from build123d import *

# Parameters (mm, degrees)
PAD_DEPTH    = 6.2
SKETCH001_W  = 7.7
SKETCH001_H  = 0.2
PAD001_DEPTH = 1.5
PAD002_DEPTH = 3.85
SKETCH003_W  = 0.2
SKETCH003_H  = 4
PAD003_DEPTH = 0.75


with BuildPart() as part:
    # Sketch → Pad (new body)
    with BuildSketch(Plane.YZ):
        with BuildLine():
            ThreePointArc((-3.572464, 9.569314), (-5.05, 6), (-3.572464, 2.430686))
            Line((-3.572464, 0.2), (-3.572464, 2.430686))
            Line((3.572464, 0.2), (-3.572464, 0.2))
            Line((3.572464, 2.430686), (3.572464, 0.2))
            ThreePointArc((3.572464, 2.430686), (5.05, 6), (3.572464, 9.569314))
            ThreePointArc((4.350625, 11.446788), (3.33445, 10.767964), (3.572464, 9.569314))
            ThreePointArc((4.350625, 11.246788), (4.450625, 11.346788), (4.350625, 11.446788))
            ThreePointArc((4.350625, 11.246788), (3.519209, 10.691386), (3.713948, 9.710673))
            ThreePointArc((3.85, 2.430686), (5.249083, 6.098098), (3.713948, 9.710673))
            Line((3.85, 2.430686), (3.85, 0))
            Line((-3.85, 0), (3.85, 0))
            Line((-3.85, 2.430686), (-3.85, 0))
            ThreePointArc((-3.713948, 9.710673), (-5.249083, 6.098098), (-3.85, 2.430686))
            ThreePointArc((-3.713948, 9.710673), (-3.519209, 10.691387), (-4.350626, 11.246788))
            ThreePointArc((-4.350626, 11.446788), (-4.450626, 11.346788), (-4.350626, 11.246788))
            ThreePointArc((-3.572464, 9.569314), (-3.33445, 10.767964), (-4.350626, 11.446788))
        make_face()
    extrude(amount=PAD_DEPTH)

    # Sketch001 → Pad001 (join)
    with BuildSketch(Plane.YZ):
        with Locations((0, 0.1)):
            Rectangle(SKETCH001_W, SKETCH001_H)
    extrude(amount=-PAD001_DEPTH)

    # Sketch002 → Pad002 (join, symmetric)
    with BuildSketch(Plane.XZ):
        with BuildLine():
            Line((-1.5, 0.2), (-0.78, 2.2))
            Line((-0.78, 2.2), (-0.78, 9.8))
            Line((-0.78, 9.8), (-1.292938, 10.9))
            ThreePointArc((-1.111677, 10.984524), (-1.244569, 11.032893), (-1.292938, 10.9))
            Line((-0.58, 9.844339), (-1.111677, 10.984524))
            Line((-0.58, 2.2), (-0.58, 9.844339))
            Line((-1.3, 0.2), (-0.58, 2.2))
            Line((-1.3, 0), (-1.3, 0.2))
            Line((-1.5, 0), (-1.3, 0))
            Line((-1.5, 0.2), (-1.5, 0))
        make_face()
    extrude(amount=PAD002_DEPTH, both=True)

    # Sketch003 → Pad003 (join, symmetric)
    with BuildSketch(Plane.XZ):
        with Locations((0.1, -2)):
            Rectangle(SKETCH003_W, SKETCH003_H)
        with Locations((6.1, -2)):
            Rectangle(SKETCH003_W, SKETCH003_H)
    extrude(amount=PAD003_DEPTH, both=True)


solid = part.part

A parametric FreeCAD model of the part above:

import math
import FreeCAD as App
import Part
import Sketcher
from FreeCAD import Vector
Q = App.Units.Quantity

doc = App.newDocument("Part")
body = doc.addObject("PartDesign::Body", "Body")

# Sketch on YZ plane
sketch1 = doc.addObject("Sketcher::SketchObject", "Sketch")
body.addObject(sketch1)
sketch1.AttachmentSupport = (doc.YZ_Plane, [""])
sketch1.MapMode = "FlatFace"
sketch1.addGeometry(Part.ArcOfCircle(Part.Circle(Vector(0, 6, 0), Vector(0, 0, 1), 5.05), math.radians(135), math.radians(225)), False)
sketch1.addGeometry(Part.ArcOfCircle(Part.Circle(Vector(-4.35, 10.35, 0), Vector(0, 0, 1), 1.1), math.radians(-45), math.radians(90)), False)
sketch1.addGeometry(Part.ArcOfCircle(Part.Circle(Vector(-4.35, 11.35, 0), Vector(0, 0, 1), 0.1), math.radians(90), math.radians(270)), False)
sketch1.addGeometry(Part.ArcOfCircle(Part.Circle(Vector(-4.35, 10.35, 0), Vector(0, 0, 1), 0.9), math.radians(-45), math.radians(90)), False)
sketch1.addGeometry(Part.ArcOfCircle(Part.Circle(Vector(0, 6, 0), Vector(0, 0, 1), 5.25), math.radians(135), math.radians(223)), False)
sketch1.addGeometry(Part.LineSegment(Vector(-3.85, 2.43, 0), Vector(-3.85, 0, 0)), False)
sketch1.addGeometry(Part.LineSegment(Vector(-3.85, 0, 0), Vector(3.85, 0, 0)), False)
sketch1.addGeometry(Part.LineSegment(Vector(3.85, 0, 0), Vector(3.85, 2.43, 0)), False)
sketch1.addGeometry(Part.ArcOfCircle(Part.Circle(Vector(0, 6, 0), Vector(0, 0, 1), 5.25), math.radians(-43), math.radians(45)), False)
sketch1.addGeometry(Part.ArcOfCircle(Part.Circle(Vector(4.35, 10.35, 0), Vector(0, 0, 1), 0.9), math.radians(90), math.radians(225)), False)
sketch1.addGeometry(Part.ArcOfCircle(Part.Circle(Vector(4.35, 11.35, 0), Vector(0, 0, 1), 0.1), math.radians(-90), math.radians(90)), False)
sketch1.addGeometry(Part.ArcOfCircle(Part.Circle(Vector(4.35, 10.35, 0), Vector(0, 0, 1), 1.1), math.radians(90), math.radians(225)), False)
sketch1.addGeometry(Part.ArcOfCircle(Part.Circle(Vector(0, 6, 0), Vector(0, 0, 1), 5.05), math.radians(-45), math.radians(45)), False)
sketch1.addGeometry(Part.LineSegment(Vector(3.57, 2.43, 0), Vector(3.57, 0.2, 0)), False)
sketch1.addGeometry(Part.LineSegment(Vector(3.57, 0.2, 0), Vector(-3.57, 0.2, 0)), False)
sketch1.addGeometry(Part.LineSegment(Vector(-3.57, 0.2, 0), Vector(-3.57, 2.43, 0)), False)
sketch1.addConstraint(Sketcher.Constraint("Tangent", 0, 1, 1, 1))
sketch1.addConstraint(Sketcher.Constraint("Tangent", 1, 2, 2, 1))
sketch1.addConstraint(Sketcher.Constraint("Coincident", 2, 2, 3, 2))
sketch1.addConstraint(Sketcher.Constraint("Tangent", 3, 1, 4, 1))
sketch1.addConstraint(Sketcher.Constraint("Coincident", 4, 2, 5, 1))
sketch1.addConstraint(Sketcher.Constraint("Coincident", 5, 2, 6, 1))
sketch1.addConstraint(Sketcher.Constraint("Coincident", 6, 2, 7, 1))
sketch1.addConstraint(Sketcher.Constraint("Coincident", 7, 2, 8, 1))
sketch1.addConstraint(Sketcher.Constraint("Tangent", 8, 2, 9, 2))
sketch1.addConstraint(Sketcher.Constraint("Tangent", 9, 1, 10, 1))
sketch1.addConstraint(Sketcher.Constraint("Tangent", 10, 2, 11, 1))
sketch1.addConstraint(Sketcher.Constraint("Tangent", 11, 2, 12, 2))
sketch1.addConstraint(Sketcher.Constraint("Coincident", 12, 1, 13, 1))
sketch1.addConstraint(Sketcher.Constraint("Coincident", 13, 2, 14, 1))
sketch1.addConstraint(Sketcher.Constraint("Coincident", 14, 2, 15, 1))
sketch1.addConstraint(Sketcher.Constraint("Coincident", 15, 2, 0, 2))
sketch1.addConstraint(Sketcher.Constraint("Vertical", 5))
sketch1.addConstraint(Sketcher.Constraint("Horizontal", 6))
sketch1.addConstraint(Sketcher.Constraint("Vertical", 7))
sketch1.addConstraint(Sketcher.Constraint("Vertical", 13))
sketch1.addConstraint(Sketcher.Constraint("Horizontal", 14))
sketch1.addConstraint(Sketcher.Constraint("Vertical", 15))
sketch1.addConstraint(Sketcher.Constraint("Coincident", 3, 3, 1, 3))
sketch1.addConstraint(Sketcher.Constraint("Coincident", 4, 3, 0, 3))
sketch1.addConstraint(Sketcher.Constraint("Coincident", 8, 3, 0, 3))
sketch1.addConstraint(Sketcher.Constraint("Coincident", 11, 3, 9, 3))
sketch1.addConstraint(Sketcher.Constraint("Coincident", 12, 3, 0, 3))
sketch1.addConstraint(Sketcher.Constraint("Equal", 4, 8))
sketch1.addConstraint(Sketcher.Constraint("Equal", 3, 9))
sketch1.addConstraint(Sketcher.Constraint("Equal", 2, 10))
sketch1.addConstraint(Sketcher.Constraint("Symmetric", 5, 2, 6, 2, -1, 1))
sketch1.addConstraint(Sketcher.Constraint("Symmetric", 1, 3, 9, 3, -2))
sketch1.addConstraint(Sketcher.Constraint("Horizontal", 7, 2, 12, 1))
sketch1.addConstraint(Sketcher.Constraint("Horizontal", 12, 1, 15, 2))
sketch1.addConstraint(Sketcher.Constraint("Vertical", 1, 3, 2, 3))
sketch1.addConstraint(Sketcher.Constraint("Vertical", 9, 3, 10, 3))
sketch1.addConstraint(Sketcher.Constraint("Vertical", 1, 2, 2, 2))
sketch1.addConstraint(Sketcher.Constraint("Vertical", 11, 2, 12, 1))
sketch1.addConstraint(Sketcher.Constraint("Radius", 1, 1.1))
sketch1.addConstraint(Sketcher.Constraint("Radius", 2, 0.1))
sketch1.addConstraint(Sketcher.Constraint("Radius", 0, 5.05))
sketch1.addConstraint(Sketcher.Constraint("DistanceX", 6, 1, 6, 2, 7.7))
sketch1.addConstraint(Sketcher.Constraint("DistanceY", -1, 1, 0, 3, 6.0))
sketch1.addConstraint(Sketcher.Constraint("DistanceY", -1, 1, 13, 2, 0.2))
pad1 = doc.addObject("PartDesign::Pad", "Pad")
body.addObject(pad1)
pad1.Profile = sketch1
pad1.Length = 6.2

# Sketch on YZ plane
sketch2 = doc.addObject("Sketcher::SketchObject", "Sketch001")
body.addObject(sketch2)
sketch2.AttachmentSupport = (doc.YZ_Plane, [""])
sketch2.MapMode = "FlatFace"
sketch2.addGeometry(Part.LineSegment(Vector(-3.85, 0.2, 0), Vector(-3.85, 0, 0)), False)
sketch2.addGeometry(Part.LineSegment(Vector(-3.85, 0, 0), Vector(3.85, 0, 0)), False)
sketch2.addGeometry(Part.LineSegment(Vector(3.85, 0, 0), Vector(3.85, 0.2, 0)), False)
sketch2.addGeometry(Part.LineSegment(Vector(3.85, 0.2, 0), Vector(-3.85, 0.2, 0)), False)
sketch2.addConstraint(Sketcher.Constraint("Coincident", 0, 2, 1, 1))
sketch2.addConstraint(Sketcher.Constraint("Coincident", 1, 2, 2, 1))
sketch2.addConstraint(Sketcher.Constraint("Coincident", 2, 2, 3, 1))
sketch2.addConstraint(Sketcher.Constraint("Coincident", 3, 2, 0, 1))
sketch2.addConstraint(Sketcher.Constraint("Vertical", 0))
sketch2.addConstraint(Sketcher.Constraint("Horizontal", 1))
sketch2.addConstraint(Sketcher.Constraint("Vertical", 2))
sketch2.addConstraint(Sketcher.Constraint("Horizontal", 3))
sketch2.addConstraint(Sketcher.Constraint("Symmetric", 0, 2, 1, 2, -1, 1))
sketch2.addConstraint(Sketcher.Constraint("DistanceX", 1, 1, 1, 2, 7.7))
sketch2.addConstraint(Sketcher.Constraint("DistanceY", 0, 2, 0, 1, 0.2))
pad2 = doc.addObject("PartDesign::Pad", "Pad001")
body.addObject(pad2)
pad2.Profile = sketch2
pad2.Length = 1.5
pad2.Reversed = True

# Sketch on XZ plane
sketch3 = doc.addObject("Sketcher::SketchObject", "Sketch002")
body.addObject(sketch3)
sketch3.AttachmentSupport = (doc.XZ_Plane, [""])
sketch3.MapMode = "FlatFace"
sketch3.addGeometry(Part.LineSegment(Vector(-0.78, 2.2, 0), Vector(-1.5, 0.2, 0)), False)
sketch3.addGeometry(Part.LineSegment(Vector(-1.5, 0.2, 0), Vector(-1.5, 0, 0)), False)
sketch3.addGeometry(Part.LineSegment(Vector(-1.5, 0, 0), Vector(-1.3, 0, 0)), False)
sketch3.addGeometry(Part.LineSegment(Vector(-1.3, 0, 0), Vector(-1.3, 0.2, 0)), False)
sketch3.addGeometry(Part.LineSegment(Vector(-1.3, 0.2, 0), Vector(-0.58, 2.2, 0)), False)
sketch3.addGeometry(Part.LineSegment(Vector(-0.58, 2.2, 0), Vector(-0.58, 9.84, 0)), False)
sketch3.addGeometry(Part.LineSegment(Vector(-0.58, 9.84, 0), Vector(-1.11, 10.98, 0)), False)
sketch3.addGeometry(Part.ArcOfCircle(Part.Circle(Vector(-1.2, 10.94, 0), Vector(0, 0, 1), 0.1), math.radians(25), math.radians(205)), False)
sketch3.addGeometry(Part.LineSegment(Vector(-1.29, 10.9, 0), Vector(-0.78, 9.8, 0)), False)
sketch3.addGeometry(Part.LineSegment(Vector(-0.78, 9.8, 0), Vector(-0.78, 2.2, 0)), False)
sketch3.addConstraint(Sketcher.Constraint("Coincident", 0, 2, 1, 1))
sketch3.addConstraint(Sketcher.Constraint("Coincident", 1, 2, 2, 1))
sketch3.addConstraint(Sketcher.Constraint("Coincident", 2, 2, 3, 1))
sketch3.addConstraint(Sketcher.Constraint("Coincident", 3, 2, 4, 1))
sketch3.addConstraint(Sketcher.Constraint("Coincident", 4, 2, 5, 1))
sketch3.addConstraint(Sketcher.Constraint("Coincident", 5, 2, 6, 1))
sketch3.addConstraint(Sketcher.Constraint("Tangent", 6, 2, 7, 1))
sketch3.addConstraint(Sketcher.Constraint("Coincident", 7, 2, 8, 1))
sketch3.addConstraint(Sketcher.Constraint("Coincident", 8, 2, 9, 1))
sketch3.addConstraint(Sketcher.Constraint("Coincident", 9, 2, 0, 1))
sketch3.addConstraint(Sketcher.Constraint("Vertical", 1))
sketch3.addConstraint(Sketcher.Constraint("Horizontal", 2))
sketch3.addConstraint(Sketcher.Constraint("Vertical", 3))
sketch3.addConstraint(Sketcher.Constraint("Vertical", 5))
sketch3.addConstraint(Sketcher.Constraint("Vertical", 9))
sketch3.addConstraint(Sketcher.Constraint("PointOnObject", 1, 2, -1))
sketch3.addConstraint(Sketcher.Constraint("Parallel", 0, 4))
sketch3.addConstraint(Sketcher.Constraint("Parallel", 6, 8))
sketch3.addConstraint(Sketcher.Constraint("Horizontal", 0, 2, 3, 2))
sketch3.addConstraint(Sketcher.Constraint("Horizontal", 4, 2, 9, 2))
sketch3.addConstraint(Sketcher.Constraint("Equal", 2, 1))
sketch3.addConstraint(Sketcher.Constraint("Radius", 7, 0.1))
sketch3.addConstraint(Sketcher.Constraint("Angle", 6, Q("115 deg")))
sketch3.addConstraint(Sketcher.Constraint("DistanceX", 2, 1, 2, 2, 0.2))
sketch3.addConstraint(Sketcher.Constraint("DistanceY", 9, 2, 9, 1, 7.6))
sketch3.addConstraint(Sketcher.Constraint("DistanceY", 3, 2, 4, 2, 2.0))
sketch3.addConstraint(Sketcher.Constraint("DistanceX", 0, 2, -1, 1, 1.5))
sketch3.addConstraint(Sketcher.Constraint("DistanceY", -1, 1, 7, 2, 10.9))
sketch3.addConstraint(Sketcher.Constraint("DistanceX", 4, 2, -1, 1, 0.58))
sketch3.addConstraint(Sketcher.Constraint("DistanceX", 7, 2, 7, 3, 0.09063))
pad3 = doc.addObject("PartDesign::Pad", "Pad002")
body.addObject(pad3)
pad3.Profile = sketch3
pad3.Length = 7.7
pad3.Midplane = True

# Sketch on XZ plane
sketch4 = doc.addObject("Sketcher::SketchObject", "Sketch003")
body.addObject(sketch4)
sketch4.AttachmentSupport = (doc.XZ_Plane, [""])
sketch4.MapMode = "FlatFace"
sketch4.addGeometry(Part.LineSegment(Vector(0, 0, 0), Vector(0, -4, 0)), False)
sketch4.addGeometry(Part.LineSegment(Vector(0, -4, 0), Vector(0.2, -4, 0)), False)
sketch4.addGeometry(Part.LineSegment(Vector(0.2, -4, 0), Vector(0.2, 0, 0)), False)
sketch4.addGeometry(Part.LineSegment(Vector(0.2, 0, 0), Vector(0, 0, 0)), False)
sketch4.addGeometry(Part.LineSegment(Vector(6, 0, 0), Vector(6, -4, 0)), False)
sketch4.addGeometry(Part.LineSegment(Vector(6, -4, 0), Vector(6.2, -4, 0)), False)
sketch4.addGeometry(Part.LineSegment(Vector(6.2, -4, 0), Vector(6.2, 0, 0)), False)
sketch4.addGeometry(Part.LineSegment(Vector(6.2, 0, 0), Vector(6, 0, 0)), False)
sketch4.addConstraint(Sketcher.Constraint("Coincident", 0, 2, 1, 1))
sketch4.addConstraint(Sketcher.Constraint("Coincident", 1, 2, 2, 1))
sketch4.addConstraint(Sketcher.Constraint("Coincident", 2, 2, 3, 1))
sketch4.addConstraint(Sketcher.Constraint("Coincident", 3, 2, 0, 1))
sketch4.addConstraint(Sketcher.Constraint("Coincident", 4, 2, 5, 1))
sketch4.addConstraint(Sketcher.Constraint("Coincident", 5, 2, 6, 1))
sketch4.addConstraint(Sketcher.Constraint("Coincident", 6, 2, 7, 1))
sketch4.addConstraint(Sketcher.Constraint("Coincident", 7, 2, 4, 1))
sketch4.addConstraint(Sketcher.Constraint("Vertical", 0))
sketch4.addConstraint(Sketcher.Constraint("Horizontal", 1))
sketch4.addConstraint(Sketcher.Constraint("Vertical", 2))
sketch4.addConstraint(Sketcher.Constraint("Horizontal", 3))
sketch4.addConstraint(Sketcher.Constraint("Vertical", 4))
sketch4.addConstraint(Sketcher.Constraint("Horizontal", 5))
sketch4.addConstraint(Sketcher.Constraint("Vertical", 6))
sketch4.addConstraint(Sketcher.Constraint("Horizontal", 7))
sketch4.addConstraint(Sketcher.Constraint("Coincident", 3, 2, -1, 1))
sketch4.addConstraint(Sketcher.Constraint("PointOnObject", 6, 2, -1))
sketch4.addConstraint(Sketcher.Constraint("Horizontal", 1, 2, 4, 2))
sketch4.addConstraint(Sketcher.Constraint("Equal", 3, 5))
sketch4.addConstraint(Sketcher.Constraint("DistanceY", 0, 2, 0, 1, 4.0))
sketch4.addConstraint(Sketcher.Constraint("DistanceX", 1, 1, 1, 2, 0.2))
sketch4.addConstraint(Sketcher.Constraint("DistanceX", -1, 1, 4, 2, 6.0))
pad4 = doc.addObject("PartDesign::Pad", "Pad003")
body.addObject(pad4)
pad4.Profile = sketch4
pad4.Length = 1.5
pad4.Midplane = True

doc.recompute()
